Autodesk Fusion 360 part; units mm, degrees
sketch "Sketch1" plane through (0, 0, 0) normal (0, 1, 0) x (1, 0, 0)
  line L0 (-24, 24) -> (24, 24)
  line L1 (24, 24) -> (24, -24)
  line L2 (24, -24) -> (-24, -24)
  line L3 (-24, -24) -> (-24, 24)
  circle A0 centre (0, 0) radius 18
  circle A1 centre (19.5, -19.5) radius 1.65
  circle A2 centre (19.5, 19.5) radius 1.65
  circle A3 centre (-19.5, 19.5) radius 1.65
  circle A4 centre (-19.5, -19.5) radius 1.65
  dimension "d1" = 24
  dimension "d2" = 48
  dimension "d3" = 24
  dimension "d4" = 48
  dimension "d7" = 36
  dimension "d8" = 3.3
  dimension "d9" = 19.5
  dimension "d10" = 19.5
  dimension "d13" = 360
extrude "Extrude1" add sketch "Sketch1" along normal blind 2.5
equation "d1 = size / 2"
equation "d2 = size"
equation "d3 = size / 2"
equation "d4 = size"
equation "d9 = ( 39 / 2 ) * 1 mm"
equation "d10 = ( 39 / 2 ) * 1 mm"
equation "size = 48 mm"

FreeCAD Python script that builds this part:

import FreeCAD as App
import Part
import Sketcher

doc = App.newDocument("Part")
params = doc.addObject("Spreadsheet::Sheet", "Params")
for row, (alias, value) in enumerate([
    ("sketch1_diameter", "36 mm"),
    ("sketch1_diameter2", "3.3 mm"),
    ("sketch1_width", "48 mm"),
    ("pad1_length", "2.5 mm"),
], start=1):
    params.set(f"A{row}", alias)
    params.set(f"B{row}", "=" + value)
    params.setAlias(f"B{row}", alias)

body = doc.addObject("PartDesign::Body", "Body")

sketch1 = body.newObject("Sketcher::SketchObject", "Sketch")
sketch1.AttachmentSupport = (doc.getObject("XZ_Plane"), [""])
sketch1.MapMode = "FlatFace"
sketch1.addGeometry([
    Part.LineSegment(App.Vector(24, -24, 0), App.Vector(-24, -24, 0)),
    Part.LineSegment(App.Vector(-24, -24, 0), App.Vector(-24, 24, 0)),
    Part.LineSegment(App.Vector(-24, 24, 0), App.Vector(24, 24, 0)),
    Part.LineSegment(App.Vector(24, 24, 0), App.Vector(24, -24, 0)),
    Part.Circle(App.Vector(-19.5, 19.5, 0), App.Vector(0, 0, 1), 1.65),
    Part.Circle(App.Vector(19.5, 19.5, 0), App.Vector(0, 0, 1), 1.65),
    Part.Circle(App.Vector(-19.5, -19.5, 0), App.Vector(0, 0, 1), 1.65),
    Part.Circle(App.Vector(0, 0, 0), App.Vector(0, 0, 1), 18),
    Part.Circle(App.Vector(19.5, -19.5, 0), App.Vector(0, 0, 1), 1.65),
], False)
sketch1.addConstraint([
    Sketcher.Constraint("Coincident", 0, 2, 1, 1),
    Sketcher.Constraint("Coincident", 1, 2, 2, 1),
    Sketcher.Constraint("Coincident", 2, 2, 3, 1),
    Sketcher.Constraint("Coincident", 3, 2, 0, 1),
    Sketcher.Constraint("Horizontal", 0),
    Sketcher.Constraint("Vertical", 1),
    Sketcher.Constraint("Horizontal", 2),
    Sketcher.Constraint("Vertical", 3),
    Sketcher.Constraint("Coincident", 7, 3, -1, 1),
    Sketcher.Constraint("Equal", 4, 5),
    Sketcher.Constraint("Equal", 5, 6),
    Sketcher.Constraint("Equal", 6, 8),
    Sketcher.Constraint("Symmetric", 5, 3, 6, 3, -1, 1),
    Sketcher.Constraint("Symmetric", 4, 3, 8, 3, -1, 1),
    Sketcher.Constraint("Symmetric", 0, 2, 2, 2, -1, 1),
    Sketcher.Constraint("Symmetric", 4, 3, 5, 3, -2),
    Sketcher.Constraint("Equal", 2, 1),
    Sketcher.Constraint("Diameter", 7, 36.0),
    Sketcher.Constraint("Diameter", 4, 3.3),
    Sketcher.Constraint("DistanceX", 0, 2, 0, 1, 48.0),
    Sketcher.Constraint("DistanceX", 4, 3, -1, 1, 19.5),
    Sketcher.Constraint("DistanceY", -1, 1, 4, 3, 19.5),
])
sketch1.setExpression("Constraints[17]", "Params.sketch1_diameter")
sketch1.setExpression("Constraints[18]", "Params.sketch1_diameter2")
sketch1.setExpression("Constraints[19]", "Params.sketch1_width")
pad1 = body.newObject("PartDesign::Pad", "Pad")
pad1.Profile = sketch1
pad1.setExpression("Length", "Params.pad1_length")
pad1.Reversed = True

doc.recompute()
